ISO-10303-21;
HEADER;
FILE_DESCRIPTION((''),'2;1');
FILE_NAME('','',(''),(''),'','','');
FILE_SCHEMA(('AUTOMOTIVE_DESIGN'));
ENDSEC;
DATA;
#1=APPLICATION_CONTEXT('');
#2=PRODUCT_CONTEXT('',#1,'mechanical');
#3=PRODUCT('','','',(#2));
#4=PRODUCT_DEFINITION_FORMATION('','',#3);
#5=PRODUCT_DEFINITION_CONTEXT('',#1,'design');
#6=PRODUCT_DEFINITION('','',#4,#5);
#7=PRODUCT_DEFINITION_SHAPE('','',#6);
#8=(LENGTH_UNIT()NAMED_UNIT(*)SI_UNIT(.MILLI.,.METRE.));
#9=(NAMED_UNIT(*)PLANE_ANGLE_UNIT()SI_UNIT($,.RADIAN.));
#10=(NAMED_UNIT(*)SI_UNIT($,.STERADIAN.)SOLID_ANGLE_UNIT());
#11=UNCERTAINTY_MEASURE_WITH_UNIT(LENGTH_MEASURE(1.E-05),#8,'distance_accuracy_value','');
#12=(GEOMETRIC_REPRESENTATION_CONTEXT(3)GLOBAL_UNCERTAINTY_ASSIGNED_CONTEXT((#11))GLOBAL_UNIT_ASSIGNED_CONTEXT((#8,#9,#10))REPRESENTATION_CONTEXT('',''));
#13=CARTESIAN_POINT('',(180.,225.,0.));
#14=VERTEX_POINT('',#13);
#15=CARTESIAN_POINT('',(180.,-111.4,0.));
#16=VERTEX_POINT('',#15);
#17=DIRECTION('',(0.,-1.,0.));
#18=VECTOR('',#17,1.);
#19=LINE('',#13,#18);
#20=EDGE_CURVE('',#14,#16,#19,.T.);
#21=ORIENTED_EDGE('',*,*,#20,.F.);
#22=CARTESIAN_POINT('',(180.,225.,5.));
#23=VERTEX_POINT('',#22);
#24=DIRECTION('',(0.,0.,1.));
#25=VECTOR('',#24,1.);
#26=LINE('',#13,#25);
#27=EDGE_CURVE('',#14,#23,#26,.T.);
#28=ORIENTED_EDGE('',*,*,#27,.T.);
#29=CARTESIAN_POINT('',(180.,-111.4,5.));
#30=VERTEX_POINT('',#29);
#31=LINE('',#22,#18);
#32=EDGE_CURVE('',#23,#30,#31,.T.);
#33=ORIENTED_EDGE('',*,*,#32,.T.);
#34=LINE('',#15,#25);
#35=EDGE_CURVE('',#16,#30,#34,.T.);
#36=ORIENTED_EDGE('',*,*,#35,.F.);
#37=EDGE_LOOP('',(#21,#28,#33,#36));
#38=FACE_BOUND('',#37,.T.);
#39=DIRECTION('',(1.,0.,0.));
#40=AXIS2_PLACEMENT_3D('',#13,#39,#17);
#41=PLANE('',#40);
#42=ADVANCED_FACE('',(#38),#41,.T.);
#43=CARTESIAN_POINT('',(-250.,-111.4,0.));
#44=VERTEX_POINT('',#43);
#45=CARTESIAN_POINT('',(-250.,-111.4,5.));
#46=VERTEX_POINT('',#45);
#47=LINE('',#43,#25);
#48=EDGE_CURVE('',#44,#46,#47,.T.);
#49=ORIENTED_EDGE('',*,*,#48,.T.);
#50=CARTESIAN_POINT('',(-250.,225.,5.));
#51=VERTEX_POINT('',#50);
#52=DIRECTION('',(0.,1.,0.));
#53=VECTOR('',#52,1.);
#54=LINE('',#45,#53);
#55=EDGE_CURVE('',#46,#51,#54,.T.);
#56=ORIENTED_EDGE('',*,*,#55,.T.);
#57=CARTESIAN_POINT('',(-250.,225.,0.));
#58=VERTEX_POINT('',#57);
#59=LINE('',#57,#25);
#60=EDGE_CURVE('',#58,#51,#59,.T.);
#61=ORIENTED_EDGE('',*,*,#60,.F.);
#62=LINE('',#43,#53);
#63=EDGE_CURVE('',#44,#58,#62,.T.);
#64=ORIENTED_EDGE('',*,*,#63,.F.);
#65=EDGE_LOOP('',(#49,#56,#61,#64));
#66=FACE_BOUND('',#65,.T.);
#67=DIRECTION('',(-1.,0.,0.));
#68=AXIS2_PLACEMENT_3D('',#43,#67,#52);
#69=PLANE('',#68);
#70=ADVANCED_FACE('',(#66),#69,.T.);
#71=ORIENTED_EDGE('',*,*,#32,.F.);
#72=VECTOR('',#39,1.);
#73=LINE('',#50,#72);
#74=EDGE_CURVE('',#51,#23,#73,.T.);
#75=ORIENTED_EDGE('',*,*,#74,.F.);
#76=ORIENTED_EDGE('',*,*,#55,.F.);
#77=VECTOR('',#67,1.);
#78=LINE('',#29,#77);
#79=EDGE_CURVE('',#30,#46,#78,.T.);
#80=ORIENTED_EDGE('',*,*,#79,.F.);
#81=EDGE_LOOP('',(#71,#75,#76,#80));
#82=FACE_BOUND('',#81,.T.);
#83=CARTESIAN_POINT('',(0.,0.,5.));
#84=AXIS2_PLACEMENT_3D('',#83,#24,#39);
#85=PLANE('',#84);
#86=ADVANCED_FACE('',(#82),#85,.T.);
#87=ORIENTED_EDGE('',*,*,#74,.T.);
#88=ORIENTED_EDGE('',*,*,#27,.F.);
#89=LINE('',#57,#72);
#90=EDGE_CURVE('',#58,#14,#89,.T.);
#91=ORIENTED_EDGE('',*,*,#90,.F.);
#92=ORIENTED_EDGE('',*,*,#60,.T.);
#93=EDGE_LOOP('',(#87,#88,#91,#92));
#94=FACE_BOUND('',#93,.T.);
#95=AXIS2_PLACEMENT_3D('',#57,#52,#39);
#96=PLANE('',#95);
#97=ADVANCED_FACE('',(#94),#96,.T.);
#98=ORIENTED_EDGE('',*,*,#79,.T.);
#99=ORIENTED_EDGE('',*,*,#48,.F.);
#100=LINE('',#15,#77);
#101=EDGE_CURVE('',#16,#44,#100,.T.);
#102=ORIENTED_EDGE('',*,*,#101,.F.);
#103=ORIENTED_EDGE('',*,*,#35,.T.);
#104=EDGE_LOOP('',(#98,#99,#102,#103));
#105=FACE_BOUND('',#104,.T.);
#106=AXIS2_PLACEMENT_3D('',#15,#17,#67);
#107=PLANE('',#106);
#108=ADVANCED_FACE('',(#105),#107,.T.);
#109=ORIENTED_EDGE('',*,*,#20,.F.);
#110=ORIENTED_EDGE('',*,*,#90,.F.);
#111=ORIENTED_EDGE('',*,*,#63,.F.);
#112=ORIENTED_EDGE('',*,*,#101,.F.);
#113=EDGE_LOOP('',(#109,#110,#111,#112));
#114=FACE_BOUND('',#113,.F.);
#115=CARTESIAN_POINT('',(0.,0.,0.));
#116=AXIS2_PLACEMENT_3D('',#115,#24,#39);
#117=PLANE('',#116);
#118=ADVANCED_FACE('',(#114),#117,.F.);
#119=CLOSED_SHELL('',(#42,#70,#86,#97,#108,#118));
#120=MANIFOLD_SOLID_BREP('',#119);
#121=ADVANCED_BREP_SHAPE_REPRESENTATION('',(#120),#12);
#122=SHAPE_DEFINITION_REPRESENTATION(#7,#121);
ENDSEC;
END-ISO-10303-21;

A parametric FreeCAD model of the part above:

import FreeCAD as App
import Part
import Sketcher

V = App.Vector
Q = App.Units.Quantity


def add_polygon(sketch, points):
    """Adds a closed chain of lines whose ends are joined by coincident constraints."""
    first, n = sketch.GeometryCount, len(points)
    for a, b in zip(points, points[1:] + points[:1]):
        sketch.addGeometry(Part.LineSegment(App.Vector(*a, 0), App.Vector(*b, 0)), False)
    for i in range(n):
        sketch.addConstraint(Sketcher.Constraint("Coincident", first + i, 2, first + (i + 1) % n, 1))

doc = App.newDocument("Part")
params = doc.addObject("Spreadsheet::Sheet", "Params")
for row, (alias, value) in enumerate([
    ("sketch1_width", "430 mm"),
    ("sketch1_height", "336.4 mm"),
    ("pad1_length", "5 mm"),
], start=1):
    params.set(f"A{row}", alias)
    params.set(f"B{row}", "=" + value)
    params.setAlias(f"B{row}", alias)

body = doc.addObject("PartDesign::Body", "Body")

# Sketch on XY plane
sketch1 = doc.addObject("Sketcher::SketchObject", "Sketch")
body.addObject(sketch1)
sketch1.AttachmentSupport = (doc.XY_Plane, [""])
sketch1.MapMode = "FlatFace"
add_polygon(sketch1, [(180, 225), (-250, 225), (-250, -111), (180, -111)])  # lines 0-3
sketch1.addConstraint(Sketcher.Constraint("Horizontal", 0))
sketch1.addConstraint(Sketcher.Constraint("Vertical", 1))
sketch1.addConstraint(Sketcher.Constraint("Horizontal", 2))
sketch1.addConstraint(Sketcher.Constraint("Vertical", 3))
sketch1.addConstraint(Sketcher.Constraint("DistanceX", 0, 2, 0, 1, Q("430 mm")))
sketch1.addConstraint(Sketcher.Constraint("DistanceY", 1, 2, 1, 1, Q("336.4 mm")))
sketch1.addConstraint(Sketcher.Constraint("DistanceX", 0, 2, -1, 1, Q("250 mm")))
sketch1.addConstraint(Sketcher.Constraint("DistanceY", -1, 1, 0, 2, Q("225 mm")))
sketch1.setExpression("Constraints[8]", "Params.sketch1_width")
sketch1.setExpression("Constraints[9]", "Params.sketch1_height")
pad1 = doc.addObject("PartDesign::Pad", "Pad")
body.addObject(pad1)
pad1.Profile = sketch1
pad1.setExpression("Length", "Params.pad1_length")

doc.recompute()
